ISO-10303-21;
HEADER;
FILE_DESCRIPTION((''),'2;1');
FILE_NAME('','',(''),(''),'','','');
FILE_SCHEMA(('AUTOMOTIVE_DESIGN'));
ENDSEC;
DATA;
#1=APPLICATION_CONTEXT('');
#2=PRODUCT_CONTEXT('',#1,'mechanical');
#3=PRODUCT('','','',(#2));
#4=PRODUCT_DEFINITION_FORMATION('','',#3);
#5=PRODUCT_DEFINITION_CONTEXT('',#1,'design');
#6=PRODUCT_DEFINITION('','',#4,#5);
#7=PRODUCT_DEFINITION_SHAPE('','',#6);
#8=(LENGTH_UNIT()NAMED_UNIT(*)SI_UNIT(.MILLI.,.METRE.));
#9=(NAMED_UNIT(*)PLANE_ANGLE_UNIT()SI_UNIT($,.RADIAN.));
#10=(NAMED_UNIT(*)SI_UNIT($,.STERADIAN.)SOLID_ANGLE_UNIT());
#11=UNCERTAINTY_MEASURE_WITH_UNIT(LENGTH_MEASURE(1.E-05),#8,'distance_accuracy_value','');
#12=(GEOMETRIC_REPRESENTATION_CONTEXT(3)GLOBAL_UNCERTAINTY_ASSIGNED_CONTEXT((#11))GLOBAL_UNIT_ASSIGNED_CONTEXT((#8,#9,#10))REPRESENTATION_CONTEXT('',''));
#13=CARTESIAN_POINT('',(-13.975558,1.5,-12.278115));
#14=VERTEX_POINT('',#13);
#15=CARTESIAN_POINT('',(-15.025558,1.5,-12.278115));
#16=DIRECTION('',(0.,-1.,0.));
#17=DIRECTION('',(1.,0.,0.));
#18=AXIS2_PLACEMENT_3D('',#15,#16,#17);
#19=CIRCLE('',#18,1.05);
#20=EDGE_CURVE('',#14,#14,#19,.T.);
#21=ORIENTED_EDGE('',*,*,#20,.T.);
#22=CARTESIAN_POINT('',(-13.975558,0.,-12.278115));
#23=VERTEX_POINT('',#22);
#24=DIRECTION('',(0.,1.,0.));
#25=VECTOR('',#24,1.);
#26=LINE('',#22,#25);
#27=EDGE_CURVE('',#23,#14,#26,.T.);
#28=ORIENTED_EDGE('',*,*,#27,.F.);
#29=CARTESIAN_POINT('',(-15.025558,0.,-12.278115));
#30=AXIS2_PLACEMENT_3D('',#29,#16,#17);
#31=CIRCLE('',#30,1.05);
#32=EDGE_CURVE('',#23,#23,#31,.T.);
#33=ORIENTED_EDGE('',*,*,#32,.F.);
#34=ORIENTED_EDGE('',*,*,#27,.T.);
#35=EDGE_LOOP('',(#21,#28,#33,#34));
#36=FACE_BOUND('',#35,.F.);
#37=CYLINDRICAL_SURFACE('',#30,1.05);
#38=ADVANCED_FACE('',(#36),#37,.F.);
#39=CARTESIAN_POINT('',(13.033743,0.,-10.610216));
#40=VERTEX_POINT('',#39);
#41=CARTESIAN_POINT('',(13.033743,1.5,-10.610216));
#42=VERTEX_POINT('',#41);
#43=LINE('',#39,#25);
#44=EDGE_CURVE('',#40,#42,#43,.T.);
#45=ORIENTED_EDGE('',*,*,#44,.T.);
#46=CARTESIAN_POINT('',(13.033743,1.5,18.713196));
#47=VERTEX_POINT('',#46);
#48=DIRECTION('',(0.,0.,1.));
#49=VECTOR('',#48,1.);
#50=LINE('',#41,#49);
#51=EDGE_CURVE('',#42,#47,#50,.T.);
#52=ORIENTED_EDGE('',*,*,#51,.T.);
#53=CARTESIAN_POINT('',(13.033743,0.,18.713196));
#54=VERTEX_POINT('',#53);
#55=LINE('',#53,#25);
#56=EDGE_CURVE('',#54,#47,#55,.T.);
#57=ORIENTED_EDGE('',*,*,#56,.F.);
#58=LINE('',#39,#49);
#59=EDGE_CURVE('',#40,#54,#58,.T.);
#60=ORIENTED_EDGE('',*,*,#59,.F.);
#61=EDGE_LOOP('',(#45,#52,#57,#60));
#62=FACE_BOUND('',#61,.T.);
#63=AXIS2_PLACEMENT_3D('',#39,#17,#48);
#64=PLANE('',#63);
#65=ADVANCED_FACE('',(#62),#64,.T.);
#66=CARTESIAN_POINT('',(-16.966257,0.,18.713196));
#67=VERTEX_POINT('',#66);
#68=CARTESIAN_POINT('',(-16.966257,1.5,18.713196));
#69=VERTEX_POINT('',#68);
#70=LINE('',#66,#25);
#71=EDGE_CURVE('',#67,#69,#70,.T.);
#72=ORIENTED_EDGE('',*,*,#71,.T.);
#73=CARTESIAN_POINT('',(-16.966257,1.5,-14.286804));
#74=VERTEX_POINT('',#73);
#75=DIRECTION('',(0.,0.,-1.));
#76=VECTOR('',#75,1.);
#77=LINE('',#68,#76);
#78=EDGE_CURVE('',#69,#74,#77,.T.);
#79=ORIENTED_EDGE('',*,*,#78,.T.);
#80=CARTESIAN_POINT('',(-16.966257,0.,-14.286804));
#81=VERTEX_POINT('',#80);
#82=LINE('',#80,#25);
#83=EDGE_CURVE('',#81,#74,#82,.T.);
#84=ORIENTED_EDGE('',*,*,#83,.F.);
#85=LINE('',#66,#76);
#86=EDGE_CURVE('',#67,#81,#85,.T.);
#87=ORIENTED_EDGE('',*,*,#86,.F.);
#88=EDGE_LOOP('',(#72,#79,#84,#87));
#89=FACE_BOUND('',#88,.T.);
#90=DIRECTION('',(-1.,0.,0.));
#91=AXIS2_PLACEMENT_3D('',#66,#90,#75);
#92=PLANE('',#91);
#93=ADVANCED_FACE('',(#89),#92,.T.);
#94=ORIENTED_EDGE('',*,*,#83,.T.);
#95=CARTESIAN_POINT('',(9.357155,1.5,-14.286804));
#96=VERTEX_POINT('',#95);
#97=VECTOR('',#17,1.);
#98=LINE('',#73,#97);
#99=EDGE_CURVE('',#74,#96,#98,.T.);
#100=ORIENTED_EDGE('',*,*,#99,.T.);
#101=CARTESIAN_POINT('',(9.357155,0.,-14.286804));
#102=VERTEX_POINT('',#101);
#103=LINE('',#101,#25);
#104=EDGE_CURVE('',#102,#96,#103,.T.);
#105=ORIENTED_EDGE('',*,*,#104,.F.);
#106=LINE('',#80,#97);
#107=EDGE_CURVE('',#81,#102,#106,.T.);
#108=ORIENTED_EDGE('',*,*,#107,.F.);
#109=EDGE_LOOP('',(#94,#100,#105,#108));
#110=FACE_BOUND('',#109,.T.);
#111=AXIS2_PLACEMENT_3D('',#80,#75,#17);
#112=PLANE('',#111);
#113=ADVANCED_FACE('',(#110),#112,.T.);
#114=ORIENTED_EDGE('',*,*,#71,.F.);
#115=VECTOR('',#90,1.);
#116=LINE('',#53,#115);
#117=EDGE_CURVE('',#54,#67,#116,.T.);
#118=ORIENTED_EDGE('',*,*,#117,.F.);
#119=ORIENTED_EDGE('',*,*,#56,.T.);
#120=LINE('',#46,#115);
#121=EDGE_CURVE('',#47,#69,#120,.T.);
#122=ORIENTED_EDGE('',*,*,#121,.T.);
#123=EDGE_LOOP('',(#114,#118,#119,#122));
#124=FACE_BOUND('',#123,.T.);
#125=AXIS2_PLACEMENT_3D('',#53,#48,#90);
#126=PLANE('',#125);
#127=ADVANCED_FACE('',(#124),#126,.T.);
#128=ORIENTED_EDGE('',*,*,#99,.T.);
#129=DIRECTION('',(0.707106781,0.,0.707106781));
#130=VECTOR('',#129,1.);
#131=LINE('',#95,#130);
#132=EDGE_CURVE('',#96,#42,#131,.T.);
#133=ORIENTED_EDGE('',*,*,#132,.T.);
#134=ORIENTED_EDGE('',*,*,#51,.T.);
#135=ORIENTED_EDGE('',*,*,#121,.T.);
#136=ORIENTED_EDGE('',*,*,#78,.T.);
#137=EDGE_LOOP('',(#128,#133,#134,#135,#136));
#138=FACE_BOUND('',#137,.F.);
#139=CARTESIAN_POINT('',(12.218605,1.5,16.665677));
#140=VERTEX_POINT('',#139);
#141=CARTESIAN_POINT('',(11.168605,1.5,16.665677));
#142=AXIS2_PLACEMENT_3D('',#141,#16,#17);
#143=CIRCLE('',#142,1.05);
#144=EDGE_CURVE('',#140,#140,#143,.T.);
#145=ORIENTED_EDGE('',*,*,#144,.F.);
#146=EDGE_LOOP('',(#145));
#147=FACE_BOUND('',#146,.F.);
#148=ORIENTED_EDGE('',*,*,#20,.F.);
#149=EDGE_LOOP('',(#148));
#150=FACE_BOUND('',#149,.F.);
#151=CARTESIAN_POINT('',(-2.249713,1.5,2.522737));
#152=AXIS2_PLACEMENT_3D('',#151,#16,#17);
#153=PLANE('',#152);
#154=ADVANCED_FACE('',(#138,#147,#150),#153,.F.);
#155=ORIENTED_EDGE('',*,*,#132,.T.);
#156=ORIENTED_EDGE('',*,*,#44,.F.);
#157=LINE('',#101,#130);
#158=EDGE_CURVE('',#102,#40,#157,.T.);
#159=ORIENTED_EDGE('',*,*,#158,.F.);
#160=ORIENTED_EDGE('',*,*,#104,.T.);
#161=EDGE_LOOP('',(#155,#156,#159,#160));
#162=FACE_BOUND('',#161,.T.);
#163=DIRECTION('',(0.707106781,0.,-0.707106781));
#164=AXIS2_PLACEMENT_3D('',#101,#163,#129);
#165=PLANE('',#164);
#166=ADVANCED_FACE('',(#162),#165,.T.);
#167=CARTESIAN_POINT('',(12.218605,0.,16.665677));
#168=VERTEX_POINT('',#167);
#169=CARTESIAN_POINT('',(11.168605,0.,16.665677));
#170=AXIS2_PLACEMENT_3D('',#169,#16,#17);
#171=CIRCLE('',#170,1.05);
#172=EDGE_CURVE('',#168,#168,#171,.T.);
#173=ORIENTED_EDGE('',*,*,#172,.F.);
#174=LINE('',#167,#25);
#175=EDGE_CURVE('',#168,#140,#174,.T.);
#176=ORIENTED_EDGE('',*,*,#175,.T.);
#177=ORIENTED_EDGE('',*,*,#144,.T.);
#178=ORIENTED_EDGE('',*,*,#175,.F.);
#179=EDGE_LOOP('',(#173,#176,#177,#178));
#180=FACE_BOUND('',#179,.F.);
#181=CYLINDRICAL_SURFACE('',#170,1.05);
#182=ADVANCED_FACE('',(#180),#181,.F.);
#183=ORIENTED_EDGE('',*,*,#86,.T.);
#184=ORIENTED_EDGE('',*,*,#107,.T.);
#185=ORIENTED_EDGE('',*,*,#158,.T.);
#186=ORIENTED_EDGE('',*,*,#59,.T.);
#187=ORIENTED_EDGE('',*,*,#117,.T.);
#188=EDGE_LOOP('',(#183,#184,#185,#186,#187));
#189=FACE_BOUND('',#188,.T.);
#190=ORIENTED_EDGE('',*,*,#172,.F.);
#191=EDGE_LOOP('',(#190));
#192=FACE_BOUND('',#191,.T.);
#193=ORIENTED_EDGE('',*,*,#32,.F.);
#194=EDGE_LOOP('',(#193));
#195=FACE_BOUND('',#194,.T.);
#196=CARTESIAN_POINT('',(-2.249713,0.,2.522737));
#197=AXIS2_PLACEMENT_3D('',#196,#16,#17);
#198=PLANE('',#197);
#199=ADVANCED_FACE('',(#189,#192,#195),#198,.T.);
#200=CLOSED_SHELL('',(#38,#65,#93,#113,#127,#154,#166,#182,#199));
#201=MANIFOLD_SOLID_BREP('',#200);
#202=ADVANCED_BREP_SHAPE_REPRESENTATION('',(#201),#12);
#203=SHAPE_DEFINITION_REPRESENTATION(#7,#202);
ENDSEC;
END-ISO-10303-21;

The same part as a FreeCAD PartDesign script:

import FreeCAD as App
import Part
import Sketcher
from FreeCAD import Vector
Q = App.Units.Quantity


def add_polygon(sketch, points):
    """Adds a closed chain of lines whose ends are joined by coincident constraints."""
    first, n = sketch.GeometryCount, len(points)
    for a, b in zip(points, points[1:] + points[:1]):
        sketch.addGeometry(Part.LineSegment(App.Vector(*a, 0), App.Vector(*b, 0)), False)
    for i in range(n):
        sketch.addConstraint(Sketcher.Constraint("Coincident", first + i, 2, first + (i + 1) % n, 1))

doc = App.newDocument("Part")
params = doc.addObject("Spreadsheet::Sheet", "Params")
for row, (alias, value) in enumerate([
    ("sketch1_diameter", "2.1 mm"),
    ("sketch1_width", "30 mm"),
    ("sketch1_height", "33 mm"),
    ("pad1_length", "1.5 mm"),
], start=1):
    params.set(f"A{row}", alias)
    params.set(f"B{row}", "=" + value)
    params.setAlias(f"B{row}", alias)

body = doc.addObject("PartDesign::Body", "Body")

# Sketch on XZ plane
sketch1 = doc.addObject("Sketcher::SketchObject", "Sketch")
body.addObject(sketch1)
sketch1.AttachmentSupport = (doc.XZ_Plane, [""])
sketch1.MapMode = "FlatFace"
add_polygon(sketch1, [(13, -10.6), (13, 18.7), (-17, 18.7), (-17, -14.3), (9.4, -14.3)])  # lines 0-4
sketch1.addGeometry(Part.Circle(Vector(-15, -12.3, 0), Vector(0, 0, 1), 1.1), False)  # 5
sketch1.addGeometry(Part.Circle(Vector(11.2, 16.7, 0), Vector(0, 0, 1), 1.1), False)  # 6
sketch1.addConstraint(Sketcher.Constraint("Vertical", 0))
sketch1.addConstraint(Sketcher.Constraint("Horizontal", 1))
sketch1.addConstraint(Sketcher.Constraint("Vertical", 2))
sketch1.addConstraint(Sketcher.Constraint("Horizontal", 3))
sketch1.addConstraint(Sketcher.Constraint("Equal", 5, 6))
sketch1.addConstraint(Sketcher.Constraint("Diameter", 5, 2.1))
sketch1.addConstraint(Sketcher.Constraint("DistanceX", 1, 2, 1, 1, 30.0))
sketch1.addConstraint(Sketcher.Constraint("DistanceY", 2, 2, 2, 1, 33.0))
sketch1.addConstraint(Sketcher.Constraint("Angle", 4, Q("45 deg")))
sketch1.addConstraint(Sketcher.Constraint("DistanceX", 3, 1, 3, 2, 26.323412))
sketch1.addConstraint(Sketcher.Constraint("DistanceX", 5, 3, 0, 2, 28.059301))
sketch1.addConstraint(Sketcher.Constraint("DistanceY", 5, 3, 4, 2, 1.667899))
sketch1.addConstraint(Sketcher.Constraint("DistanceY", 5, 3, 6, 3, 28.943792))
sketch1.addConstraint(Sketcher.Constraint("DistanceX", 1, 2, 6, 3, 28.134862))
sketch1.addConstraint(Sketcher.Constraint("DistanceX", 5, 3, -1, 1, 15.025558))
sketch1.addConstraint(Sketcher.Constraint("DistanceY", 5, 3, -1, 1, 12.278115))
sketch1.setExpression("Constraints[10]", "Params.sketch1_diameter")
sketch1.setExpression("Constraints[11]", "Params.sketch1_width")
sketch1.setExpression("Constraints[12]", "Params.sketch1_height")
pad1 = doc.addObject("PartDesign::Pad", "Pad")
body.addObject(pad1)
pad1.Profile = sketch1
pad1.setExpression("Length", "Params.pad1_length")
pad1.Reversed = True

doc.recompute()
